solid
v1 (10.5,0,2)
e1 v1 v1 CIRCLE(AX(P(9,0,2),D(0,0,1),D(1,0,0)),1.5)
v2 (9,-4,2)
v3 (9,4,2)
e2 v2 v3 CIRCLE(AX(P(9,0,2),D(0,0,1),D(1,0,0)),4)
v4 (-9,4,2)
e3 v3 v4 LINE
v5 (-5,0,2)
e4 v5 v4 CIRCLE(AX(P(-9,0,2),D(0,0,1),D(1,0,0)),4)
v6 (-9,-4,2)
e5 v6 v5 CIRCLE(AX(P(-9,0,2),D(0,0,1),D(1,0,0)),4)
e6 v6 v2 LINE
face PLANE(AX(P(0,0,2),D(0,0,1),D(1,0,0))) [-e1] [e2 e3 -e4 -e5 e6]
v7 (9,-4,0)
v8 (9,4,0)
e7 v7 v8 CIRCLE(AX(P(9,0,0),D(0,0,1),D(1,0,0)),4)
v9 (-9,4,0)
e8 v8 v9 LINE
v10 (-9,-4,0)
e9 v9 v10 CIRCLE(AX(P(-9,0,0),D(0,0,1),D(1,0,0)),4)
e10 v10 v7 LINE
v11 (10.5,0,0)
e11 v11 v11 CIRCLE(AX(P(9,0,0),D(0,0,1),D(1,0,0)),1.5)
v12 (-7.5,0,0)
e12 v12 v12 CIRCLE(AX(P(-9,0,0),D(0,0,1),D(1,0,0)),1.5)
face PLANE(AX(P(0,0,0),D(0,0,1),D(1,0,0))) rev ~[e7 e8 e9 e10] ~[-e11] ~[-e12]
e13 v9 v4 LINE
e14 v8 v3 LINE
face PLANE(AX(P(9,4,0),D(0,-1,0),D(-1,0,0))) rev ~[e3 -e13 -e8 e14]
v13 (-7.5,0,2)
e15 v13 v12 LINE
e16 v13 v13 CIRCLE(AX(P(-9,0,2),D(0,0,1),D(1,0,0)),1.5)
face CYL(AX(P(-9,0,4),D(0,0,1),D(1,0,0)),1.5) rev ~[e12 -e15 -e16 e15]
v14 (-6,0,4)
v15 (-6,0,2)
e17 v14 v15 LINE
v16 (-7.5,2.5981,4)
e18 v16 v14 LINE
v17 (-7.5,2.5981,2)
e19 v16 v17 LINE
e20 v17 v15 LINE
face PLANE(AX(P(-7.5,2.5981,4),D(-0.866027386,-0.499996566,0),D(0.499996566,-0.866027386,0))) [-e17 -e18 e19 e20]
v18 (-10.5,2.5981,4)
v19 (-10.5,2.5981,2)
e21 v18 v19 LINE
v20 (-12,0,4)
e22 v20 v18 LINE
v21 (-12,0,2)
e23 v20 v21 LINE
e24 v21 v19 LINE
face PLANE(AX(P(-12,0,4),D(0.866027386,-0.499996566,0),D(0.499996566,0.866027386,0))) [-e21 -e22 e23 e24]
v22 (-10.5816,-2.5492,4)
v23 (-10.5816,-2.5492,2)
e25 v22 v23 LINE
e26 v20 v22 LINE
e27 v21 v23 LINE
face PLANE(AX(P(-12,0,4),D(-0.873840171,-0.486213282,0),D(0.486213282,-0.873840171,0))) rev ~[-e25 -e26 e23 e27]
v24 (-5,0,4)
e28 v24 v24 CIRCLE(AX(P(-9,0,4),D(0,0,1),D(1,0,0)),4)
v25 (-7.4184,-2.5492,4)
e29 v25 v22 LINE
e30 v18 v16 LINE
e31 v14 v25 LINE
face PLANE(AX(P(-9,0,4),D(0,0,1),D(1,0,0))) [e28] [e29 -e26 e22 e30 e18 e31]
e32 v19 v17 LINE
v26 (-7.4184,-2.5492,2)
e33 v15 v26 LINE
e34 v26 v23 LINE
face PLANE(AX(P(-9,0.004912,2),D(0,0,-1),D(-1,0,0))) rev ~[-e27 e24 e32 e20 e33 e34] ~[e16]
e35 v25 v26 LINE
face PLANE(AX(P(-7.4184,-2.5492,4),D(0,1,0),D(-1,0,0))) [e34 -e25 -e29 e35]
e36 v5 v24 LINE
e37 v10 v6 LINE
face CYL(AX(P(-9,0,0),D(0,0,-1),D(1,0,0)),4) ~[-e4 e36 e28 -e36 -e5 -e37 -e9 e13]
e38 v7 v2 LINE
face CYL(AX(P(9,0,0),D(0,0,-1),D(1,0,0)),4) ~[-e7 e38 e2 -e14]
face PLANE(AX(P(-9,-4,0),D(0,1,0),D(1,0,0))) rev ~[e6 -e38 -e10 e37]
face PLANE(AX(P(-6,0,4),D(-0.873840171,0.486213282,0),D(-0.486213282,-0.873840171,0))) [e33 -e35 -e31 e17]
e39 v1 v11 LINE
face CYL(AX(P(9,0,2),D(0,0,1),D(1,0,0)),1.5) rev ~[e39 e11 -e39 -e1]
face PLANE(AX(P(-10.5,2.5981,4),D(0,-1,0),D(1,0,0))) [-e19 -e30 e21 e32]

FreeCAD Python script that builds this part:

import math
import FreeCAD as App
import Part
import Sketcher
Q = App.Units.Quantity


def add_polygon(sketch, points):
    """Adds a closed chain of lines whose ends are joined by coincident constraints."""
    first, n = sketch.GeometryCount, len(points)
    for a, b in zip(points, points[1:] + points[:1]):
        sketch.addGeometry(Part.LineSegment(App.Vector(*a, 0), App.Vector(*b, 0)), False)
    for i in range(n):
        sketch.addConstraint(Sketcher.Constraint("Coincident", first + i, 2, first + (i + 1) % n, 1))

doc = App.newDocument("Part")
body = doc.addObject("PartDesign::Body", "Body")

sketch1 = body.newObject("Sketcher::SketchObject", "Sketch")
sketch1.AttachmentSupport = (doc.getObject("XY_Plane"), [""])
sketch1.MapMode = "FlatFace"
sketch1.addGeometry(Part.ArcOfCircle(Part.Circle(App.Vector(-9, 0, 0), App.Vector(0, 0, 1), 4), math.radians(90), math.radians(270)), False)
sketch1.addGeometry(Part.LineSegment(App.Vector(-9, -4, 0), App.Vector(9, -4, 0)), False)
sketch1.addGeometry(Part.ArcOfCircle(Part.Circle(App.Vector(9, 0, 0), App.Vector(0, 0, 1), 4), math.radians(-90), math.radians(90)), False)
sketch1.addGeometry(Part.LineSegment(App.Vector(9, 4, 0), App.Vector(-9, 4, 0)), False)
sketch1.addConstraint(Sketcher.Constraint("Tangent", 0, 2, 1, 1))
sketch1.addConstraint(Sketcher.Constraint("Tangent", 1, 2, 2, 1))
sketch1.addConstraint(Sketcher.Constraint("Tangent", 2, 2, 3, 1))
sketch1.addConstraint(Sketcher.Constraint("Tangent", 3, 2, 0, 1))
sketch1.addConstraint(Sketcher.Constraint("Horizontal", 1))
sketch1.addConstraint(Sketcher.Constraint("Horizontal", 3))
sketch1.addConstraint(Sketcher.Constraint("Symmetric", 0, 3, 2, 3, -1, 1))
sketch1.addConstraint(Sketcher.Constraint("Radius", 0, 4.0))
sketch1.addConstraint(Sketcher.Constraint("DistanceX", 1, 1, 1, 2, 18.0))
pad1 = body.newObject("PartDesign::Pad", "Pad")
pad1.Profile = sketch1
pad1.Length = 2

sketch2 = body.newObject("Sketcher::SketchObject", "Sketch001")
sketch2.AttachmentSupport = (doc.getObject("XY_Plane"), [""])
sketch2.MapMode = "FlatFace"
sketch2.AttachmentOffset = App.Placement(App.Vector(0, 0, 2), App.Rotation())
sketch2.addGeometry(Part.Circle(App.Vector(9, 0, 0), App.Vector(0, 0, 1), 1.5), False)
sketch2.addConstraint(Sketcher.Constraint("PointOnObject", 0, 3, -1))
sketch2.addConstraint(Sketcher.Constraint("Diameter", 0, 3.0))
sketch2.addConstraint(Sketcher.Constraint("DistanceX", -1, 1, 0, 3, 9.0))
pocket1 = body.newObject("PartDesign::Pocket", "Pocket")
pocket1.Profile = sketch2
pocket1.Type = "UpToFirst"

sketch3 = body.newObject("Sketcher::SketchObject", "Sketch002")
sketch3.AttachmentSupport = (doc.getObject("XY_Plane"), [""])
sketch3.MapMode = "FlatFace"
sketch3.AttachmentOffset = App.Placement(App.Vector(0, 0, 2), App.Rotation())
sketch3.addGeometry(Part.Circle(App.Vector(-9, 0, 0), App.Vector(0, 0, 1), 4), False)
sketch3.addConstraint(Sketcher.Constraint("PointOnObject", 0, 3, -1))
sketch3.addConstraint(Sketcher.Constraint("Diameter", 0, 8.0))
sketch3.addConstraint(Sketcher.Constraint("DistanceX", 0, 3, -1, 1, 9.0))
pad2 = body.newObject("PartDesign::Pad", "Pad001")
pad2.Profile = sketch3
pad2.Length = 2

sketch4 = body.newObject("Sketcher::SketchObject", "Sketch003")
sketch4.AttachmentSupport = (doc.getObject("XY_Plane"), [""])
sketch4.MapMode = "FlatFace"
sketch4.AttachmentOffset = App.Placement(App.Vector(0, 0, 4), App.Rotation())
sketch4.addGeometry(Part.Circle(App.Vector(-9, 0, 0), App.Vector(0, 0, 1), 1.5), False)
sketch4.addConstraint(Sketcher.Constraint("PointOnObject", 0, 3, -1))
sketch4.addConstraint(Sketcher.Constraint("Diameter", 0, 3.0))
sketch4.addConstraint(Sketcher.Constraint("DistanceX", 0, 3, -1, 1, 9.0))
pocket2 = body.newObject("PartDesign::Pocket", "Pocket001")
pocket2.Profile = sketch4
pocket2.Type = "UpToFirst"

sketch5 = body.newObject("Sketcher::SketchObject", "Sketch004")
sketch5.AttachmentSupport = (doc.getObject("XY_Plane"), [""])
sketch5.MapMode = "FlatFace"
sketch5.AttachmentOffset = App.Placement(App.Vector(0, 0, 4), App.Rotation())
add_polygon(sketch5, [(-10.5, 2.6), (-12, 0), (-10.6, -2.5), (-7.4, -2.5), (-6, 0), (-7.5, 2.6)])
sketch5.addConstraint(Sketcher.Constraint("Horizontal", 2))
sketch5.addConstraint(Sketcher.Constraint("Horizontal", 5))
sketch5.addConstraint(Sketcher.Constraint("PointOnObject", 0, 2, -1))
sketch5.addConstraint(Sketcher.Constraint("PointOnObject", 3, 2, -1))
sketch5.addConstraint(Sketcher.Constraint("Equal", 1, 3))
sketch5.addConstraint(Sketcher.Constraint("Equal", 0, 4))
sketch5.addConstraint(Sketcher.Constraint("DistanceX", 5, 2, 5, 1, 3.0))
sketch5.addConstraint(Sketcher.Constraint("Angle", 0, Q("-119.9998 deg")))
sketch5.addConstraint(Sketcher.Constraint("Distance", 0, 3.0))
sketch5.addConstraint(Sketcher.Constraint("DistanceX", 0, 2, -1, 1, 12.0))
sketch5.addConstraint(Sketcher.Constraint("DistanceX", 2, 1, 2, 2, 3.1632))
sketch5.addConstraint(Sketcher.Constraint("Distance", 1, 2.9172))
pocket3 = body.newObject("PartDesign::Pocket", "Pocket002")
pocket3.Profile = sketch5
pocket3.Length = 2

doc.recompute()
